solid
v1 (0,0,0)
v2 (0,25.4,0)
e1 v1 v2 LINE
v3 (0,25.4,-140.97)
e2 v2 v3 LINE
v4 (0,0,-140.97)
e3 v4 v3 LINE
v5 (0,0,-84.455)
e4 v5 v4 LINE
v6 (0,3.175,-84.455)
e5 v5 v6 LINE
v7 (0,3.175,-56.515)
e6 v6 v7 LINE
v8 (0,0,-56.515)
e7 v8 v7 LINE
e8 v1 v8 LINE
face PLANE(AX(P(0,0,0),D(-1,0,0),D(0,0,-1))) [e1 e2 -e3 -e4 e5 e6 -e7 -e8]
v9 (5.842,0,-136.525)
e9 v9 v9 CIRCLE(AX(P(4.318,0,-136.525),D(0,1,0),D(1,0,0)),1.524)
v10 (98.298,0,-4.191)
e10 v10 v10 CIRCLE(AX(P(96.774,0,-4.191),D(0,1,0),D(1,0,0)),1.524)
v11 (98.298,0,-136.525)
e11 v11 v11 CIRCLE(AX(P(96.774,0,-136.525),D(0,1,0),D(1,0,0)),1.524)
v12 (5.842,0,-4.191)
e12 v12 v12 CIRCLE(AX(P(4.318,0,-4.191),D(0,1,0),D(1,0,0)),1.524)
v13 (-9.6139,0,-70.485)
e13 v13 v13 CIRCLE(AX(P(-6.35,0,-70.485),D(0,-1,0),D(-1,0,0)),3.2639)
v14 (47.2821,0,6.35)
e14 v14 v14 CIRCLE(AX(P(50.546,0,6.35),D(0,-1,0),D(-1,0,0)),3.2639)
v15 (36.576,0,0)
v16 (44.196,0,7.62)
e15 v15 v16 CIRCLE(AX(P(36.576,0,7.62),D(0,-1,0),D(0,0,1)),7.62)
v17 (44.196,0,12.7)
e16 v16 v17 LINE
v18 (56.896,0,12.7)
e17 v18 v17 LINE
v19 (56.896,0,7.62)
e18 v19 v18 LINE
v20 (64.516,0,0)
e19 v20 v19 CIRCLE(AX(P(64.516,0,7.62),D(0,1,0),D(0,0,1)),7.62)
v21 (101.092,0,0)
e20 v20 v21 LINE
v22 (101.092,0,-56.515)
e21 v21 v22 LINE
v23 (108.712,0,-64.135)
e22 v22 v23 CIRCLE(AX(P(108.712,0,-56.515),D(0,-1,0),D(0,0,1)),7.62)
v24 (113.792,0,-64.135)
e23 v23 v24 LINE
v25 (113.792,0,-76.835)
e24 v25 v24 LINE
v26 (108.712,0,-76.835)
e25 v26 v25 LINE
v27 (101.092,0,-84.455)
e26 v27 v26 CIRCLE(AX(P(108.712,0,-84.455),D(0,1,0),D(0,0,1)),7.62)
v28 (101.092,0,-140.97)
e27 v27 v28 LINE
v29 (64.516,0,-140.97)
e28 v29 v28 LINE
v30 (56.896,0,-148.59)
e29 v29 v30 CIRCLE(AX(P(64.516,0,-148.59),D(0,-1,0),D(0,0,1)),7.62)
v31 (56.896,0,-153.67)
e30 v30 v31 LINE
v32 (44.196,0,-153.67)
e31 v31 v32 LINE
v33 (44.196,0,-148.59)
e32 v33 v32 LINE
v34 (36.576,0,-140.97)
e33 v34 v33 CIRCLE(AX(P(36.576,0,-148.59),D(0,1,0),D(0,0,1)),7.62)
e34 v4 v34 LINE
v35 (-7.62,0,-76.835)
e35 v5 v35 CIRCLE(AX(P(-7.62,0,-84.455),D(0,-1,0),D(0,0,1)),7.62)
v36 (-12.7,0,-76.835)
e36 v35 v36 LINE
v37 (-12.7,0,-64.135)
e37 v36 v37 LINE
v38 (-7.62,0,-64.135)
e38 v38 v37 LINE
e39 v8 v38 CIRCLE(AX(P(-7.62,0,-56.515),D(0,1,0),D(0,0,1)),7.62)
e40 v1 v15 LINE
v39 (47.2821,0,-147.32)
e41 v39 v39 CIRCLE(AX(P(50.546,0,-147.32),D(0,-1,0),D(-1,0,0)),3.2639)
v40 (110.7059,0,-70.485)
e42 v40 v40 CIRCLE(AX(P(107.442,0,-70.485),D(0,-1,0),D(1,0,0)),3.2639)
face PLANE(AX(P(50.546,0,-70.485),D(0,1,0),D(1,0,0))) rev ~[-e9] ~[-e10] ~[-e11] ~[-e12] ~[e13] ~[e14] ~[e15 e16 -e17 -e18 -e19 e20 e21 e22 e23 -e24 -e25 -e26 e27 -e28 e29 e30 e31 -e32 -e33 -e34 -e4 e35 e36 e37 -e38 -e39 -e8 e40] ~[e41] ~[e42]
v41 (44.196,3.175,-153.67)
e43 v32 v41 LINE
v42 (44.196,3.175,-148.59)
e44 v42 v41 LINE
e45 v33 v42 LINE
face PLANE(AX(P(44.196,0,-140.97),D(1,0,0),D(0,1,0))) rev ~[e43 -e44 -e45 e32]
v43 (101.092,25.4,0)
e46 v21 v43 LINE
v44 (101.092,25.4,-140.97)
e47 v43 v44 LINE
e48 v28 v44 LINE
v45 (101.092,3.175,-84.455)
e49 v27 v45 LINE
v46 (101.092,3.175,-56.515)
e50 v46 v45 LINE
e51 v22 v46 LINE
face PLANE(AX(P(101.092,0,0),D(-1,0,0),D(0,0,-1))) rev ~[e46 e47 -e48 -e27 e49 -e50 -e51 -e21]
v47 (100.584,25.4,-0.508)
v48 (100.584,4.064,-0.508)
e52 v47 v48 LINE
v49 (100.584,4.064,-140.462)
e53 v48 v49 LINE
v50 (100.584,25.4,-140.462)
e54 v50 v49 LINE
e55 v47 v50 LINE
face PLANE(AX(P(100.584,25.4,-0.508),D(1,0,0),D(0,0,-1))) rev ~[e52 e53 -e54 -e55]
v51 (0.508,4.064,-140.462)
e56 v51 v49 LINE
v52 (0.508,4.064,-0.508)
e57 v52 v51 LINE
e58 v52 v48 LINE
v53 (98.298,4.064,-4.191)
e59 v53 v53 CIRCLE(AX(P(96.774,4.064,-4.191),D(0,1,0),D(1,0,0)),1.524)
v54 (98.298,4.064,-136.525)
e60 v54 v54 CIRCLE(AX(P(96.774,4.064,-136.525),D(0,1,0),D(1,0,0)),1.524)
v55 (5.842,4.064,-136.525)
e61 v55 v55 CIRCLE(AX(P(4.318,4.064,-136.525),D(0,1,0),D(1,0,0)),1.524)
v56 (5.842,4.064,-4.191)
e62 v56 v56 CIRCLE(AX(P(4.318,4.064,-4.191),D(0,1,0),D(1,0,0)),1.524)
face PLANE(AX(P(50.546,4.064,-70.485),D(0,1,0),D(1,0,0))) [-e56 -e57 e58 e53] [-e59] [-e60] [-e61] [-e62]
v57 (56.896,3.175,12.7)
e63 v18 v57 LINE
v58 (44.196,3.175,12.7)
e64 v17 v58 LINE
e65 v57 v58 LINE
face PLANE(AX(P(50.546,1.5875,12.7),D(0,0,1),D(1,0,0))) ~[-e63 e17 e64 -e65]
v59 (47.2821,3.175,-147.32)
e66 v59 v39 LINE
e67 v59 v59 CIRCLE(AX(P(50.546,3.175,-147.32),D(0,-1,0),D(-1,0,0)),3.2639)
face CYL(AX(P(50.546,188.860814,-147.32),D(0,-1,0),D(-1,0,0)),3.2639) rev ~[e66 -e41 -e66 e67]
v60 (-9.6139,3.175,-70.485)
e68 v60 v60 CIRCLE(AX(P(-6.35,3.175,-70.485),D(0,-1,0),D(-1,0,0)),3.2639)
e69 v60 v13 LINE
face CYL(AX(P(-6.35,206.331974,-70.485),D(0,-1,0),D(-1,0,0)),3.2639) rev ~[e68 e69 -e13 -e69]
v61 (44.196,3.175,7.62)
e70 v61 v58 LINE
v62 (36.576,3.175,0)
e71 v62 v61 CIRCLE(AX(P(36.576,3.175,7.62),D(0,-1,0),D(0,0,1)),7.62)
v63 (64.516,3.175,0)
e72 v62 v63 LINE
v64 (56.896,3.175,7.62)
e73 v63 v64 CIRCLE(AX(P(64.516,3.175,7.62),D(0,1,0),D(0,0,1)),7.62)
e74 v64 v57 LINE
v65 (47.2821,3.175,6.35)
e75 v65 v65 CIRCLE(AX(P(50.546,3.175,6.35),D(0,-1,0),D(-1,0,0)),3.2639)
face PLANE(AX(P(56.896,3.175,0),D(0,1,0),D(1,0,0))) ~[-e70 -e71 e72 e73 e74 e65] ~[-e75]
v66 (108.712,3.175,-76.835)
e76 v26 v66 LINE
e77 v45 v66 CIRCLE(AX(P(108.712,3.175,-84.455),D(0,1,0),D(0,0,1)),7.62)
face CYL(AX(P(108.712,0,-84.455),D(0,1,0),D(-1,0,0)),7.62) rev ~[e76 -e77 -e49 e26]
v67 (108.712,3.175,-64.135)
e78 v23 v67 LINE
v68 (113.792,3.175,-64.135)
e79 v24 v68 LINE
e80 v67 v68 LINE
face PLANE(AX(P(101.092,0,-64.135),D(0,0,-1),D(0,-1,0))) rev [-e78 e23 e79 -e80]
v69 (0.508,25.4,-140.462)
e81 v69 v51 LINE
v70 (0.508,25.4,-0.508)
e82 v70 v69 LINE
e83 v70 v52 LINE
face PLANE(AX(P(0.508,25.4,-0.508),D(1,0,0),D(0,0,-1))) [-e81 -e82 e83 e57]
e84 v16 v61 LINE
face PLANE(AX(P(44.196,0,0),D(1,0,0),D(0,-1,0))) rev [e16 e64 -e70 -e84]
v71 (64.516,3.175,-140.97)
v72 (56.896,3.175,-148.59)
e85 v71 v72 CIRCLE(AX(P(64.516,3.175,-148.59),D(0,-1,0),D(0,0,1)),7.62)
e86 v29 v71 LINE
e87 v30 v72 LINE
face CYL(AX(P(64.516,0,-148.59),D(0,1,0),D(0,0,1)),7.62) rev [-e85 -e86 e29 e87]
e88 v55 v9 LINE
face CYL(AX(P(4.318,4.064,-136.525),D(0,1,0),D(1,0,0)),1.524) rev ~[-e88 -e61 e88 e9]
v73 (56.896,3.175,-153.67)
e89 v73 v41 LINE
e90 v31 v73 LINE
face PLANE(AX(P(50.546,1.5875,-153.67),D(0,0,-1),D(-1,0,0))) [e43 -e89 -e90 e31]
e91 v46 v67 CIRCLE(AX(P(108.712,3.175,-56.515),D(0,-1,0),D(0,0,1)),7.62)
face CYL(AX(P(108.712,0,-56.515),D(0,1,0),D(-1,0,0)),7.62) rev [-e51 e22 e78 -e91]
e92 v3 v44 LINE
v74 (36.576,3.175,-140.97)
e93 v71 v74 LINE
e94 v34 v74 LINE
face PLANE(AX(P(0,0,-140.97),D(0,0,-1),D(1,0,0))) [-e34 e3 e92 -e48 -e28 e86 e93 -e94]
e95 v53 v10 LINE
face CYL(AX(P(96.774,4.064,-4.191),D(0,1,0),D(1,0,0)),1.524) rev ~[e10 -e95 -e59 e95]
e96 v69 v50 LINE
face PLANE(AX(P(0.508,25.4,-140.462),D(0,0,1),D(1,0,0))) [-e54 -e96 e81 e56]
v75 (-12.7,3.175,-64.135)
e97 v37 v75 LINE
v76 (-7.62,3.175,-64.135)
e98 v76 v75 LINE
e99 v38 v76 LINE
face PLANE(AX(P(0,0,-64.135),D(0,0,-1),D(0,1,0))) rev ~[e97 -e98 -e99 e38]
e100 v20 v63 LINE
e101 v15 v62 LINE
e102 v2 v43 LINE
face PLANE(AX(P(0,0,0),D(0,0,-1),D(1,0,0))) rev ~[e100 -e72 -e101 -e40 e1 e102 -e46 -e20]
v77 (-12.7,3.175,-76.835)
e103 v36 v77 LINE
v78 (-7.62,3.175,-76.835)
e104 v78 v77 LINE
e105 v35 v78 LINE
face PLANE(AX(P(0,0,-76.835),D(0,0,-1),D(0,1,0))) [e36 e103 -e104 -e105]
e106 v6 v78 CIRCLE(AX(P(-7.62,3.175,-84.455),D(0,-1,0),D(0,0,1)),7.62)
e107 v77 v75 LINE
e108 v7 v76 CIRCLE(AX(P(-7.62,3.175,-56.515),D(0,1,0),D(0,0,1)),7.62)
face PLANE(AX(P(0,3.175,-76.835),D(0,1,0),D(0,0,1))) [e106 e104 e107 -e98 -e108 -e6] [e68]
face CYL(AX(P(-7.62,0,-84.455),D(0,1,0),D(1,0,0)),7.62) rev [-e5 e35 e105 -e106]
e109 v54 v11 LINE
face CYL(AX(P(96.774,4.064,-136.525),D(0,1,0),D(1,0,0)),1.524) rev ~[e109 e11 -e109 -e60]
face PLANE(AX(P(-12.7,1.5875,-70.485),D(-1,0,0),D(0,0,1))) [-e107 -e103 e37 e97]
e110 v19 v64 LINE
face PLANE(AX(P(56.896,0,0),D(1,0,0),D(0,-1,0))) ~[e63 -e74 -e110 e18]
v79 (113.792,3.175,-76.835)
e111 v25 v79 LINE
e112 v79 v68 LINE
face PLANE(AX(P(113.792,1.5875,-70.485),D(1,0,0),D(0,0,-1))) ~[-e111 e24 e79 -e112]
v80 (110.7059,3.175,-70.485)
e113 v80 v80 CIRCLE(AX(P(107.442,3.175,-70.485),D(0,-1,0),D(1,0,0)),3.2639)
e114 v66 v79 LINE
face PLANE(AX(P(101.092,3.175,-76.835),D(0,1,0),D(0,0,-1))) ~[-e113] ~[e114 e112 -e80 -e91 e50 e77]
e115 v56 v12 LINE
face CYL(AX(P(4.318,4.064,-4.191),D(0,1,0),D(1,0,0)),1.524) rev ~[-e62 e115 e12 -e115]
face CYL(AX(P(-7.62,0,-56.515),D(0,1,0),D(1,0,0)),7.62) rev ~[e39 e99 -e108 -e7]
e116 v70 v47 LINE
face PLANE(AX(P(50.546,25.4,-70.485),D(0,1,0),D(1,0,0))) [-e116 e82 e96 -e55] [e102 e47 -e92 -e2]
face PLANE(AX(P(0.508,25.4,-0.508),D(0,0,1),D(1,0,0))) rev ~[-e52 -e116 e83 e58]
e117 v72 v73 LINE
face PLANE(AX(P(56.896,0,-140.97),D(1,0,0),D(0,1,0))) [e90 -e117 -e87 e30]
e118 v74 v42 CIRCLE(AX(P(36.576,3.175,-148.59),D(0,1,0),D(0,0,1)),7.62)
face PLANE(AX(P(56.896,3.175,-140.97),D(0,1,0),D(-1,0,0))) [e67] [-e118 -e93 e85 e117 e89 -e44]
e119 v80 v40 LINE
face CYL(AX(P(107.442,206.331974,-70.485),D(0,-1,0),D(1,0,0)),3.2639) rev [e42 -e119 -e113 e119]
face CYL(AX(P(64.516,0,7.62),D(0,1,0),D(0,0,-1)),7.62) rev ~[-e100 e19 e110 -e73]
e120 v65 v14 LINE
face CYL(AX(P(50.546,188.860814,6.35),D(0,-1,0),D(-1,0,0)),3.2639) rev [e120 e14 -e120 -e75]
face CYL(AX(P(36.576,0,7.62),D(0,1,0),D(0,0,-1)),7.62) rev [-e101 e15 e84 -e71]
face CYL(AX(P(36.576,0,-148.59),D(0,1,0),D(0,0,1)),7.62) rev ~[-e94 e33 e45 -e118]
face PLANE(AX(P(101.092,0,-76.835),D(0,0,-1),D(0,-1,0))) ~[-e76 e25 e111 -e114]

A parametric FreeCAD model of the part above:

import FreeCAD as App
import Part
import Sketcher
from FreeCAD import Vector
Q = App.Units.Quantity


def edges_at(feature, points):
    """Names of the edges that pass closest to the given points."""
    edges = feature.Shape.Edges
    near = lambda p: min(range(len(edges)), key=lambda i: edges[i].distToShape(Part.Vertex(*p))[0])
    return sorted({f"Edge{near(p) + 1}" for p in points})

doc = App.newDocument("Part")
body = doc.addObject("PartDesign::Body", "Body")

sketch1 = body.newObject("Sketcher::SketchObject", "Sketch")
sketch1.AttachmentSupport = (doc.getObject("XZ_Plane"), [""])
sketch1.MapMode = "FlatFace"
sketch1.addGeometry([
    Part.LineSegment(Vector(0, -141, 0), Vector(0, 0, 0)),
    Part.LineSegment(Vector(0, 0, 0), Vector(101, 0, 0)),
    Part.LineSegment(Vector(101, 0, 0), Vector(101, -141, 0)),
    Part.LineSegment(Vector(101, -141, 0), Vector(0, -141, 0)),
], False)
sketch1.addConstraint([
    Sketcher.Constraint("Coincident", 0, 2, 1, 1),
    Sketcher.Constraint("Coincident", 1, 2, 2, 1),
    Sketcher.Constraint("Coincident", 2, 2, 3, 1),
    Sketcher.Constraint("Coincident", 3, 2, 0, 1),
    Sketcher.Constraint("Vertical", 0),
    Sketcher.Constraint("Horizontal", 1),
    Sketcher.Constraint("Vertical", 2),
    Sketcher.Constraint("Horizontal", 3),
    Sketcher.Constraint("Coincident", 0, 2, -1, 1),
    Sketcher.Constraint("DistanceX", 1, 1, 1, 2, Q("3.98 in")),
    Sketcher.Constraint("DistanceY", 0, 1, 0, 2, Q("5.55 in")),
])
pad1 = body.newObject("PartDesign::Pad", "Pad")
pad1.Profile = sketch1
pad1.Length = Q("1 in")
pad1.Reversed = True

sketch2 = body.newObject("Sketcher::SketchObject", "Sketch001")
sketch2.AttachmentSupport = (doc.getObject("XZ_Plane"), [""])
sketch2.MapMode = "FlatFace"
sketch2.AttachmentOffset = App.Placement(Vector(0, 0, -1 * 25.4), App.Rotation())
sketch2.addGeometry([
    Part.LineSegment(Vector(1, -140, 0), Vector(1, -1, 0)),
    Part.LineSegment(Vector(1, -1, 0), Vector(101, -1, 0)),
    Part.LineSegment(Vector(101, -1, 0), Vector(101, -140, 0)),
    Part.LineSegment(Vector(101, -140, 0), Vector(1, -140, 0)),
], False)
sketch2.addConstraint([
    Sketcher.Constraint("Coincident", 0, 2, 1, 1),
    Sketcher.Constraint("Coincident", 1, 2, 2, 1),
    Sketcher.Constraint("Coincident", 2, 2, 3, 1),
    Sketcher.Constraint("Coincident", 3, 2, 0, 1),
    Sketcher.Constraint("Vertical", 0),
    Sketcher.Constraint("Horizontal", 1),
    Sketcher.Constraint("Vertical", 2),
    Sketcher.Constraint("Horizontal", 3),
    Sketcher.Constraint("DistanceX", 1, 1, 1, 2, Q("3.94 in")),
    Sketcher.Constraint("DistanceY", 0, 1, 0, 2, Q("5.51 in")),
    Sketcher.Constraint("DistanceX", -1, 1, 0, 2, Q("0.02 in")),
    Sketcher.Constraint("DistanceY", 0, 2, -1, 1, Q("0.02 in")),
])
pocket1 = body.newObject("PartDesign::Pocket", "Pocket")
pocket1.Profile = sketch2
pocket1.Length = Q("0.84 in")
pocket1.Reversed = True

sketch3 = body.newObject("Sketcher::SketchObject", "Sketch002")
sketch3.AttachmentSupport = (doc.getObject("XZ_Plane"), [""])
sketch3.MapMode = "FlatFace"
sketch3.AttachmentOffset = App.Placement(Vector(0, 0, -0.16 * 25.4), App.Rotation())
sketch3.addGeometry([
    Part.Circle(Vector(4.3, -136.5, 0), Vector(0, 0, 1), 1.5),
    Part.Circle(Vector(96.8, -136.5, 0), Vector(0, 0, 1), 1.5),
    Part.Circle(Vector(96.8, -4.2, 0), Vector(0, 0, 1), 1.5),
    Part.Circle(Vector(4.3, -4.2, 0), Vector(0, 0, 1), 1.5),
], False)
sketch3.addConstraint([
    Sketcher.Constraint("Equal", 0, 1),
    Sketcher.Constraint("Equal", 1, 2),
    Sketcher.Constraint("Equal", 2, 3),
    Sketcher.Constraint("Horizontal", 0, 3, 1, 3),
    Sketcher.Constraint("Horizontal", 2, 3, 3, 3),
    Sketcher.Constraint("Vertical", 1, 3, 2, 3),
    Sketcher.Constraint("Vertical", 0, 3, 3, 3),
    Sketcher.Constraint("Diameter", 0, Q("0.12 in")),
    Sketcher.Constraint("DistanceX", -1, 1, 0, 3, Q("0.17 in")),
    Sketcher.Constraint("DistanceX", -1, 1, 1, 3, Q("3.81 in")),
    Sketcher.Constraint("DistanceY", 1, 3, 2, 3, Q("5.21 in")),
    Sketcher.Constraint("DistanceY", 0, 3, -1, 1, Q("5.375 in")),
])
pocket2 = body.newObject("PartDesign::Pocket", "Pocket001")
pocket2.Profile = sketch3
pocket2.Length = Q("0.84 in")
pocket2.Reversed = True

sketch4 = body.newObject("Sketcher::SketchObject", "Sketch003")
sketch4.AttachmentSupport = (doc.getObject("XY_Plane"), [""])
sketch4.MapMode = "FlatFace"
sketch4.AttachmentOffset = App.Placement(Vector(0, 0, -5.55 * 25.4), App.Rotation())
sketch4.addGeometry([
    Part.LineSegment(Vector(56.9, 3.2, 0), Vector(56.9, 0, 0)),
    Part.LineSegment(Vector(56.9, 0, 0), Vector(44.2, 0, 0)),
    Part.LineSegment(Vector(44.2, 0, 0), Vector(44.2, 3.2, 0)),
    Part.LineSegment(Vector(44.2, 3.2, 0), Vector(56.9, 3.2, 0)),
], False)
sketch4.addConstraint([
    Sketcher.Constraint("Coincident", 0, 2, 1, 1),
    Sketcher.Constraint("Coincident", 1, 2, 2, 1),
    Sketcher.Constraint("Coincident", 2, 2, 3, 1),
    Sketcher.Constraint("Coincident", 3, 2, 0, 1),
    Sketcher.Constraint("Vertical", 0),
    Sketcher.Constraint("Horizontal", 1),
    Sketcher.Constraint("Vertical", 2),
    Sketcher.Constraint("Horizontal", 3),
    Sketcher.Constraint("PointOnObject", 0, 2, -1),
    Sketcher.Constraint("DistanceX", 1, 2, 1, 1, Q("0.5 in")),
    Sketcher.Constraint("DistanceY", 0, 2, 0, 1, Q("0.125 in")),
    Sketcher.Constraint("DistanceX", -1, 1, 0, 2, Q("2.24 in")),
])
pad2 = body.newObject("PartDesign::Pad", "Pad001")
pad2.Profile = sketch4
pad2.Length = Q("0.5 in")
pad2.Reversed = True

sketch5 = body.newObject("Sketcher::SketchObject", "Sketch004")
sketch5.AttachmentSupport = (doc.getObject("XZ_Plane"), [""])
sketch5.MapMode = "FlatFace"
sketch5.AttachmentOffset = App.Placement(Vector(0, 0, -0.125 * 25.4), App.Rotation())
sketch5.addGeometry(Part.Circle(Vector(50.5, -147.3, 0), Vector(0, 0, 1), 3.3), False)
sketch5.addConstraint([
    Sketcher.Constraint("Diameter", 0, Q("0.257 in")),
    Sketcher.Constraint("DistanceY", 0, 3, -1, 1, Q("5.8 in")),
    Sketcher.Constraint("DistanceX", -1, 1, 0, 3, Q("1.99 in")),
])
doc.recompute()
hole = body.newObject("PartDesign::Hole", "Hole")
hole.Profile = sketch5
hole.ThreadType = "None"
hole.Diameter = Q("0.257 in")
hole.DepthType = "ThroughAll"
hole.Reversed = True
doc.recompute()

datumplane = body.newObject("PartDesign::Plane", "DatumPlane")
datumplane.AttachmentSupport = (doc.getObject("XY_Plane"), [""])
datumplane.MapMode = "FlatFace"
datumplane.AttachmentOffset = App.Placement(Vector(0, 0, -2.775 * 25.4), App.Rotation())
mirrored = body.newObject("PartDesign::Mirrored", "Mirrored")
mirrored.Originals = [pad2, hole]
mirrored.MirrorPlane = (datumplane, [""])
body.Tip = mirrored

sketch6 = body.newObject("Sketcher::SketchObject", "Sketch005")
sketch6.AttachmentSupport = (doc.getObject("YZ_Plane"), [""])
sketch6.MapMode = "FlatFace"
sketch6.addGeometry([
    Part.LineSegment(Vector(3.2, -76.8, 0), Vector(0, -76.8, 0)),
    Part.LineSegment(Vector(0, -76.8, 0), Vector(0, -64.1, 0)),
    Part.LineSegment(Vector(0, -64.1, 0), Vector(3.2, -64.1, 0)),
    Part.LineSegment(Vector(3.2, -64.1, 0), Vector(3.2, -76.8, 0)),
], False)
sketch6.addConstraint([
    Sketcher.Constraint("Coincident", 0, 2, 1, 1),
    Sketcher.Constraint("Coincident", 1, 2, 2, 1),
    Sketcher.Constraint("Coincident", 2, 2, 3, 1),
    Sketcher.Constraint("Coincident", 3, 2, 0, 1),
    Sketcher.Constraint("Horizontal", 0),
    Sketcher.Constraint("Vertical", 1),
    Sketcher.Constraint("Horizontal", 2),
    Sketcher.Constraint("Vertical", 3),
    Sketcher.Constraint("PointOnObject", 0, 2, -2),
    Sketcher.Constraint("DistanceY", 1, 1, 1, 2, Q("0.5 in")),
    Sketcher.Constraint("DistanceX", 0, 2, 0, 1, Q("0.125 in")),
    Sketcher.Constraint("DistanceY", 0, 2, -1, 1, Q("3.025 in")),
])
pad3 = body.newObject("PartDesign::Pad", "Pad002")
pad3.Profile = sketch6
pad3.Length = Q("0.5 in")
pad3.Reversed = True

sketch7 = body.newObject("Sketcher::SketchObject", "Sketch006")
sketch7.AttachmentSupport = (doc.getObject("XZ_Plane"), [""])
sketch7.MapMode = "FlatFace"
sketch7.AttachmentOffset = App.Placement(Vector(0, 0, -0.125 * 25.4), App.Rotation())
sketch7.addGeometry(Part.Circle(Vector(-6.3, -70.5, 0), Vector(0, 0, 1), 3.3), False)
sketch7.addConstraint([
    Sketcher.Constraint("Diameter", 0, Q("0.257 in")),
    Sketcher.Constraint("DistanceX", 0, 3, -1, 1, Q("0.25 in")),
    Sketcher.Constraint("DistanceY", 0, 3, -1, 1, Q("2.775 in")),
])
doc.recompute()
hole2 = body.newObject("PartDesign::Hole", "Hole001")
hole2.Profile = sketch7
hole2.ThreadType = "None"
hole2.Diameter = Q("0.257 in")
hole2.DepthType = "ThroughAll"
hole2.Reversed = True
doc.recompute()

datumplane2 = body.newObject("PartDesign::Plane", "DatumPlane001")
datumplane2.AttachmentSupport = (doc.getObject("YZ_Plane"), [""])
datumplane2.MapMode = "FlatFace"
datumplane2.AttachmentOffset = App.Placement(Vector(0, 0, 1.99 * 25.4), App.Rotation())
mirrored2 = body.newObject("PartDesign::Mirrored", "Mirrored001")
mirrored2.Originals = [pad3, hole2]
mirrored2.MirrorPlane = (datumplane2, [""])
body.Tip = mirrored2
doc.recompute()

fillet = body.newObject("PartDesign::Fillet", "Fillet")
fillet.Base = (mirrored2, edges_at(mirrored2, [
    (101.092, 1.587, -64.135),
    (101.092, 1.587, -76.835),
    (56.896, 1.587, -140.97),
    (44.196, 1.587, -140.97),
    (56.896, 1.587, 0),
    (44.196, 1.587, 0),
    (0, 1.587, -64.135),
    (0, 1.587, -76.835),
]))
fillet.Radius = Q("0.3 in")

doc.recompute()
